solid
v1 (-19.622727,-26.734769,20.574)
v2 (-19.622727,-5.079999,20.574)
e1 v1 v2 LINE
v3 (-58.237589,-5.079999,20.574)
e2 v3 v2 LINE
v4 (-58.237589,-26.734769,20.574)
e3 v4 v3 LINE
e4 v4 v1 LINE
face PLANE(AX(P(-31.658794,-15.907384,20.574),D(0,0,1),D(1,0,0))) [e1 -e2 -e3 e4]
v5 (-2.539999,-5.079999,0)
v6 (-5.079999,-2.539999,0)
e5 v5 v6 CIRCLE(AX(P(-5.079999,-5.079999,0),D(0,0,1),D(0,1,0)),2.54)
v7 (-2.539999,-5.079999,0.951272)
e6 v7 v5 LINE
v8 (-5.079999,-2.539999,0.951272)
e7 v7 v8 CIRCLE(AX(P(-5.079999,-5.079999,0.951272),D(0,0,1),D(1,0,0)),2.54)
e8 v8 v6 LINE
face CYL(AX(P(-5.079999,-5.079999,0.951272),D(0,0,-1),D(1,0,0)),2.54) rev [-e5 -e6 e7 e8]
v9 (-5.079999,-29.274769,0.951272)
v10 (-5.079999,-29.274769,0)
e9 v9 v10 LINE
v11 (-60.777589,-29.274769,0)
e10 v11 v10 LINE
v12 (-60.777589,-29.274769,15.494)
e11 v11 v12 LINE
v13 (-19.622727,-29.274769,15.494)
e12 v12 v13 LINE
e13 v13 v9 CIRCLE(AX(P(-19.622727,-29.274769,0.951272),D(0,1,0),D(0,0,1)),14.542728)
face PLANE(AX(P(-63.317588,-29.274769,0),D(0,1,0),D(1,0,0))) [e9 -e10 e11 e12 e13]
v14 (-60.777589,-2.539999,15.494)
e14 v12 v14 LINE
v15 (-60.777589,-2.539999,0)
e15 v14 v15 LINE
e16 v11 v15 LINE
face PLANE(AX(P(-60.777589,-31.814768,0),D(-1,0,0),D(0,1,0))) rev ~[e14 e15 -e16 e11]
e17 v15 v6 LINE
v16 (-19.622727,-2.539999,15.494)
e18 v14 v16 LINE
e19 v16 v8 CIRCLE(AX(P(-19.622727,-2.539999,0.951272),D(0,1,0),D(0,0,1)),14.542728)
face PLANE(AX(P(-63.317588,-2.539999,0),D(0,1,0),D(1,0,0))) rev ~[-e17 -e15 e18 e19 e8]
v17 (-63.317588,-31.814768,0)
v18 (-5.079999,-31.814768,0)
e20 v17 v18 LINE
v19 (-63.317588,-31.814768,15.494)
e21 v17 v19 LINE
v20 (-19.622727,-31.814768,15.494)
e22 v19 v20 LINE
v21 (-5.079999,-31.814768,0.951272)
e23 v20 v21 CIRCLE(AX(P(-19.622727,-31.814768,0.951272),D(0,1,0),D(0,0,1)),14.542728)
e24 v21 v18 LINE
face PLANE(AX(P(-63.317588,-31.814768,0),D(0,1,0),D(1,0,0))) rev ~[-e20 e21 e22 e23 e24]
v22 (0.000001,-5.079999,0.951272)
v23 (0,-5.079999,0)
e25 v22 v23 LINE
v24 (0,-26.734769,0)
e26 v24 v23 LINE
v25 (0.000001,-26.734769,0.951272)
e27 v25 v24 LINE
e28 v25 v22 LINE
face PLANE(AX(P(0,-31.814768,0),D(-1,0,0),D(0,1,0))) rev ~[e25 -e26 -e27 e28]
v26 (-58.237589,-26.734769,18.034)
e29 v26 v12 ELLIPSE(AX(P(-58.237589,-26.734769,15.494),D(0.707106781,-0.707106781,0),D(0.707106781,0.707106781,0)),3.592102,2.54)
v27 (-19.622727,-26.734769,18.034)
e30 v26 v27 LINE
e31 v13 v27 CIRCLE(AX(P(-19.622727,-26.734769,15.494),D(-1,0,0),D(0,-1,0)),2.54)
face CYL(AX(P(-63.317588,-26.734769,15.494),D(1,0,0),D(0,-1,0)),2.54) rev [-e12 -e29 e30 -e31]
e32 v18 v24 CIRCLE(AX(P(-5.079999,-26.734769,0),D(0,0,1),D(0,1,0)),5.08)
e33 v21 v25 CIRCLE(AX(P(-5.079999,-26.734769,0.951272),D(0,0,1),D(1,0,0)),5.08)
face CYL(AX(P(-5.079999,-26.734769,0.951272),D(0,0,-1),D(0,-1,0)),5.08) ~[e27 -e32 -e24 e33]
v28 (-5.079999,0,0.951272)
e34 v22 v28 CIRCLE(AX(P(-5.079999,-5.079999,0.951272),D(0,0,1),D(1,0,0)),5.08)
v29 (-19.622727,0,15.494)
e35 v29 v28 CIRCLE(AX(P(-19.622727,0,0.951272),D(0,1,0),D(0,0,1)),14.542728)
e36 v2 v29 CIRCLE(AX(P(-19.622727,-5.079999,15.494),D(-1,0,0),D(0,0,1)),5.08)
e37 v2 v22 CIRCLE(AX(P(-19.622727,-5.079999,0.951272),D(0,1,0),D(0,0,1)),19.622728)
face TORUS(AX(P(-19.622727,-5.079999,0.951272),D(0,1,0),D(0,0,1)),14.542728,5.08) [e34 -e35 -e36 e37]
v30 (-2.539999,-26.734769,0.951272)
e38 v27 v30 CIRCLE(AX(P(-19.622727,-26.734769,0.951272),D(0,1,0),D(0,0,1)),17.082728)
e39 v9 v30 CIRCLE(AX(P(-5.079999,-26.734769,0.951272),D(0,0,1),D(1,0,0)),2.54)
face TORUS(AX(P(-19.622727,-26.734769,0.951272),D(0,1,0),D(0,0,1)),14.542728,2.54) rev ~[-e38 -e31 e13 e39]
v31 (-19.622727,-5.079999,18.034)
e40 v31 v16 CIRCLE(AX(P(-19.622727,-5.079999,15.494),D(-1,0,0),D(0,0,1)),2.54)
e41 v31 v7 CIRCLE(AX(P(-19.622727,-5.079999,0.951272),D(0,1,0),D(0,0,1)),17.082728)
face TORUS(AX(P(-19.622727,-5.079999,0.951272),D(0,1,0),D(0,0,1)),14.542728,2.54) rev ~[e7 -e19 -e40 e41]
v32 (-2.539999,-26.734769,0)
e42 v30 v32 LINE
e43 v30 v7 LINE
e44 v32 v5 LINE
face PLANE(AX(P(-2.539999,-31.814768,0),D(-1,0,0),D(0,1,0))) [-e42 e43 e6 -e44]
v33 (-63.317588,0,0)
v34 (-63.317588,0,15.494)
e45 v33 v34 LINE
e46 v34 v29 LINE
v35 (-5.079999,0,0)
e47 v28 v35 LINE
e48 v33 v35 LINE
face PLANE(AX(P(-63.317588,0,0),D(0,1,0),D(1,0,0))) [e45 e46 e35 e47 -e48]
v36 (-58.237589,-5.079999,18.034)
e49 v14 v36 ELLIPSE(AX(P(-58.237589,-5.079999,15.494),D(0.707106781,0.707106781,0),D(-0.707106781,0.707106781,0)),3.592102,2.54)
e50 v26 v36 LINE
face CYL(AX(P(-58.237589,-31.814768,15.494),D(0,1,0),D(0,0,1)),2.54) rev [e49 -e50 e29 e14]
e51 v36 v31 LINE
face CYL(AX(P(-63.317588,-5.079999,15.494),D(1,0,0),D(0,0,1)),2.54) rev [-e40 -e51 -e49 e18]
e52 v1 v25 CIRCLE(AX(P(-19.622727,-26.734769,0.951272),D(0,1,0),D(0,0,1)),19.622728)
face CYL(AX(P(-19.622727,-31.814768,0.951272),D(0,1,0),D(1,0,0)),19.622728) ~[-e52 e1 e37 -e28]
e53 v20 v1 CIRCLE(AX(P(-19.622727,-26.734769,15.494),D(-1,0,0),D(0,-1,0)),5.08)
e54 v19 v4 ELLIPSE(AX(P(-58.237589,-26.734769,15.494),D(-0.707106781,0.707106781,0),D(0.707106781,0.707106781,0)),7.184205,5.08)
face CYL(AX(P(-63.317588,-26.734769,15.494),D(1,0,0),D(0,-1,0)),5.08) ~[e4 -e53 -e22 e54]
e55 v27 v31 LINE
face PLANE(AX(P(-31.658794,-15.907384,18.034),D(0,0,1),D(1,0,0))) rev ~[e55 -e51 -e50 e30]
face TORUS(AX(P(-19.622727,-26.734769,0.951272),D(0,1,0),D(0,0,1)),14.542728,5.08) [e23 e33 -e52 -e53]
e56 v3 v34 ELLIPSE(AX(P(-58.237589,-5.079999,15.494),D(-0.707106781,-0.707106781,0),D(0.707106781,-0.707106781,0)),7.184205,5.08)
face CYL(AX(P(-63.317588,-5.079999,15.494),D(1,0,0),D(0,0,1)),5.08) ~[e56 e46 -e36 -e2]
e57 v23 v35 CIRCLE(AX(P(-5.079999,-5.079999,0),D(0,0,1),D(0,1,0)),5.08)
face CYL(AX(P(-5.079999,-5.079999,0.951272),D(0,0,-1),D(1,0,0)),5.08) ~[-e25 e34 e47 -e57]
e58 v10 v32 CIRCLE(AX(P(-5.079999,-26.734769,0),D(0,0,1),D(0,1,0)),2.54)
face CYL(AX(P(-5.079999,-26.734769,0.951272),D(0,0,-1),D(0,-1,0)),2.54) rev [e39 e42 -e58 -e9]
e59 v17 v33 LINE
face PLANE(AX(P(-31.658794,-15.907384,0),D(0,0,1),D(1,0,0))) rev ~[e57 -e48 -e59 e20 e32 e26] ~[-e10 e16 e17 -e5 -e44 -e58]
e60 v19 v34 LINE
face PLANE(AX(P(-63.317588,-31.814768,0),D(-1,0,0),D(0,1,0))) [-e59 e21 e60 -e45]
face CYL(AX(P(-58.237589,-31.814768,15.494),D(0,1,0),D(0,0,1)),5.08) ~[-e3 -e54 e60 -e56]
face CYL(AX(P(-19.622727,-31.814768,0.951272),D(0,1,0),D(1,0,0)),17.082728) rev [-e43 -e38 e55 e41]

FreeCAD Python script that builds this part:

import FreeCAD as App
import Part
import Sketcher
from FreeCAD import Vector
Q = App.Units.Quantity


def edges_at(feature, points):
    """Names of the edges that pass closest to the given points."""
    edges = feature.Shape.Edges
    near = lambda p: min(range(len(edges)), key=lambda i: edges[i].distToShape(Part.Vertex(*p))[0])
    return sorted({f"Edge{near(p) + 1}" for p in points})


def faces_at(feature, points):
    """Names of the faces that lie closest to the given points."""
    faces = feature.Shape.Faces
    near = lambda p: min(range(len(faces)), key=lambda i: faces[i].distToShape(Part.Vertex(*p))[0])
    return sorted({f"Face{near(p) + 1}" for p in points})

doc = App.newDocument("Part")
body = doc.addObject("PartDesign::Body", "Body")

sketch1 = body.newObject("Sketcher::SketchObject", "Sketch")
sketch1.AttachmentSupport = (doc.getObject("XY_Plane"), [""])
sketch1.MapMode = "FlatFace"
sketch1.addGeometry([
    Part.LineSegment(Vector(-63, 0, 0), Vector(-63, -32, 0)),
    Part.LineSegment(Vector(-63, -32, 0), Vector(0, -32, 0)),
    Part.LineSegment(Vector(0, -32, 0), Vector(0, 0, 0)),
    Part.LineSegment(Vector(0, 0, 0), Vector(-63, 0, 0)),
], False)
sketch1.addConstraint([
    Sketcher.Constraint("Coincident", 0, 2, 1, 1),
    Sketcher.Constraint("Coincident", 1, 2, 2, 1),
    Sketcher.Constraint("Coincident", 2, 2, 3, 1),
    Sketcher.Constraint("Coincident", 3, 2, 0, 1),
    Sketcher.Constraint("Vertical", 0),
    Sketcher.Constraint("Horizontal", 1),
    Sketcher.Constraint("Vertical", 2),
    Sketcher.Constraint("Horizontal", 3),
    Sketcher.Constraint("Coincident", 2, 2, -1, 1),
    Sketcher.Constraint("DistanceX", 1, 1, 1, 2, Q("63.317589 mm")),
    Sketcher.Constraint("DistanceY", 0, 2, 0, 1, Q("31.814769 mm")),
])
pad1 = body.newObject("PartDesign::Pad", "Pad")
pad1.Profile = sketch1
pad1.Length = Q("0.81 in")
doc.recompute()

fillet = body.newObject("PartDesign::Fillet", "Fillet")
fillet.Base = (pad1, edges_at(pad1, [(0, -15.907, 20.574)]))
fillet.Radius = 19.622728
doc.recompute()

fillet2 = body.newObject("PartDesign::Fillet", "Fillet001")
fillet2.Base = (fillet, edges_at(fillet, [(-41.47, -31.815, 20.574), (-41.47, 0, 20.574), (-63.318, -15.907, 20.574)]))
fillet2.Radius = Q("0.2 in")
doc.recompute()

thickness = body.newObject("PartDesign::Thickness", "Thickness")
thickness.Base = (fillet2, faces_at(fillet2, [(-31.659, -15.907, 0)]))
thickness.Value = Q("0.1 in")
thickness.Reversed = True
thickness.Join = "Arc"

doc.recompute()
